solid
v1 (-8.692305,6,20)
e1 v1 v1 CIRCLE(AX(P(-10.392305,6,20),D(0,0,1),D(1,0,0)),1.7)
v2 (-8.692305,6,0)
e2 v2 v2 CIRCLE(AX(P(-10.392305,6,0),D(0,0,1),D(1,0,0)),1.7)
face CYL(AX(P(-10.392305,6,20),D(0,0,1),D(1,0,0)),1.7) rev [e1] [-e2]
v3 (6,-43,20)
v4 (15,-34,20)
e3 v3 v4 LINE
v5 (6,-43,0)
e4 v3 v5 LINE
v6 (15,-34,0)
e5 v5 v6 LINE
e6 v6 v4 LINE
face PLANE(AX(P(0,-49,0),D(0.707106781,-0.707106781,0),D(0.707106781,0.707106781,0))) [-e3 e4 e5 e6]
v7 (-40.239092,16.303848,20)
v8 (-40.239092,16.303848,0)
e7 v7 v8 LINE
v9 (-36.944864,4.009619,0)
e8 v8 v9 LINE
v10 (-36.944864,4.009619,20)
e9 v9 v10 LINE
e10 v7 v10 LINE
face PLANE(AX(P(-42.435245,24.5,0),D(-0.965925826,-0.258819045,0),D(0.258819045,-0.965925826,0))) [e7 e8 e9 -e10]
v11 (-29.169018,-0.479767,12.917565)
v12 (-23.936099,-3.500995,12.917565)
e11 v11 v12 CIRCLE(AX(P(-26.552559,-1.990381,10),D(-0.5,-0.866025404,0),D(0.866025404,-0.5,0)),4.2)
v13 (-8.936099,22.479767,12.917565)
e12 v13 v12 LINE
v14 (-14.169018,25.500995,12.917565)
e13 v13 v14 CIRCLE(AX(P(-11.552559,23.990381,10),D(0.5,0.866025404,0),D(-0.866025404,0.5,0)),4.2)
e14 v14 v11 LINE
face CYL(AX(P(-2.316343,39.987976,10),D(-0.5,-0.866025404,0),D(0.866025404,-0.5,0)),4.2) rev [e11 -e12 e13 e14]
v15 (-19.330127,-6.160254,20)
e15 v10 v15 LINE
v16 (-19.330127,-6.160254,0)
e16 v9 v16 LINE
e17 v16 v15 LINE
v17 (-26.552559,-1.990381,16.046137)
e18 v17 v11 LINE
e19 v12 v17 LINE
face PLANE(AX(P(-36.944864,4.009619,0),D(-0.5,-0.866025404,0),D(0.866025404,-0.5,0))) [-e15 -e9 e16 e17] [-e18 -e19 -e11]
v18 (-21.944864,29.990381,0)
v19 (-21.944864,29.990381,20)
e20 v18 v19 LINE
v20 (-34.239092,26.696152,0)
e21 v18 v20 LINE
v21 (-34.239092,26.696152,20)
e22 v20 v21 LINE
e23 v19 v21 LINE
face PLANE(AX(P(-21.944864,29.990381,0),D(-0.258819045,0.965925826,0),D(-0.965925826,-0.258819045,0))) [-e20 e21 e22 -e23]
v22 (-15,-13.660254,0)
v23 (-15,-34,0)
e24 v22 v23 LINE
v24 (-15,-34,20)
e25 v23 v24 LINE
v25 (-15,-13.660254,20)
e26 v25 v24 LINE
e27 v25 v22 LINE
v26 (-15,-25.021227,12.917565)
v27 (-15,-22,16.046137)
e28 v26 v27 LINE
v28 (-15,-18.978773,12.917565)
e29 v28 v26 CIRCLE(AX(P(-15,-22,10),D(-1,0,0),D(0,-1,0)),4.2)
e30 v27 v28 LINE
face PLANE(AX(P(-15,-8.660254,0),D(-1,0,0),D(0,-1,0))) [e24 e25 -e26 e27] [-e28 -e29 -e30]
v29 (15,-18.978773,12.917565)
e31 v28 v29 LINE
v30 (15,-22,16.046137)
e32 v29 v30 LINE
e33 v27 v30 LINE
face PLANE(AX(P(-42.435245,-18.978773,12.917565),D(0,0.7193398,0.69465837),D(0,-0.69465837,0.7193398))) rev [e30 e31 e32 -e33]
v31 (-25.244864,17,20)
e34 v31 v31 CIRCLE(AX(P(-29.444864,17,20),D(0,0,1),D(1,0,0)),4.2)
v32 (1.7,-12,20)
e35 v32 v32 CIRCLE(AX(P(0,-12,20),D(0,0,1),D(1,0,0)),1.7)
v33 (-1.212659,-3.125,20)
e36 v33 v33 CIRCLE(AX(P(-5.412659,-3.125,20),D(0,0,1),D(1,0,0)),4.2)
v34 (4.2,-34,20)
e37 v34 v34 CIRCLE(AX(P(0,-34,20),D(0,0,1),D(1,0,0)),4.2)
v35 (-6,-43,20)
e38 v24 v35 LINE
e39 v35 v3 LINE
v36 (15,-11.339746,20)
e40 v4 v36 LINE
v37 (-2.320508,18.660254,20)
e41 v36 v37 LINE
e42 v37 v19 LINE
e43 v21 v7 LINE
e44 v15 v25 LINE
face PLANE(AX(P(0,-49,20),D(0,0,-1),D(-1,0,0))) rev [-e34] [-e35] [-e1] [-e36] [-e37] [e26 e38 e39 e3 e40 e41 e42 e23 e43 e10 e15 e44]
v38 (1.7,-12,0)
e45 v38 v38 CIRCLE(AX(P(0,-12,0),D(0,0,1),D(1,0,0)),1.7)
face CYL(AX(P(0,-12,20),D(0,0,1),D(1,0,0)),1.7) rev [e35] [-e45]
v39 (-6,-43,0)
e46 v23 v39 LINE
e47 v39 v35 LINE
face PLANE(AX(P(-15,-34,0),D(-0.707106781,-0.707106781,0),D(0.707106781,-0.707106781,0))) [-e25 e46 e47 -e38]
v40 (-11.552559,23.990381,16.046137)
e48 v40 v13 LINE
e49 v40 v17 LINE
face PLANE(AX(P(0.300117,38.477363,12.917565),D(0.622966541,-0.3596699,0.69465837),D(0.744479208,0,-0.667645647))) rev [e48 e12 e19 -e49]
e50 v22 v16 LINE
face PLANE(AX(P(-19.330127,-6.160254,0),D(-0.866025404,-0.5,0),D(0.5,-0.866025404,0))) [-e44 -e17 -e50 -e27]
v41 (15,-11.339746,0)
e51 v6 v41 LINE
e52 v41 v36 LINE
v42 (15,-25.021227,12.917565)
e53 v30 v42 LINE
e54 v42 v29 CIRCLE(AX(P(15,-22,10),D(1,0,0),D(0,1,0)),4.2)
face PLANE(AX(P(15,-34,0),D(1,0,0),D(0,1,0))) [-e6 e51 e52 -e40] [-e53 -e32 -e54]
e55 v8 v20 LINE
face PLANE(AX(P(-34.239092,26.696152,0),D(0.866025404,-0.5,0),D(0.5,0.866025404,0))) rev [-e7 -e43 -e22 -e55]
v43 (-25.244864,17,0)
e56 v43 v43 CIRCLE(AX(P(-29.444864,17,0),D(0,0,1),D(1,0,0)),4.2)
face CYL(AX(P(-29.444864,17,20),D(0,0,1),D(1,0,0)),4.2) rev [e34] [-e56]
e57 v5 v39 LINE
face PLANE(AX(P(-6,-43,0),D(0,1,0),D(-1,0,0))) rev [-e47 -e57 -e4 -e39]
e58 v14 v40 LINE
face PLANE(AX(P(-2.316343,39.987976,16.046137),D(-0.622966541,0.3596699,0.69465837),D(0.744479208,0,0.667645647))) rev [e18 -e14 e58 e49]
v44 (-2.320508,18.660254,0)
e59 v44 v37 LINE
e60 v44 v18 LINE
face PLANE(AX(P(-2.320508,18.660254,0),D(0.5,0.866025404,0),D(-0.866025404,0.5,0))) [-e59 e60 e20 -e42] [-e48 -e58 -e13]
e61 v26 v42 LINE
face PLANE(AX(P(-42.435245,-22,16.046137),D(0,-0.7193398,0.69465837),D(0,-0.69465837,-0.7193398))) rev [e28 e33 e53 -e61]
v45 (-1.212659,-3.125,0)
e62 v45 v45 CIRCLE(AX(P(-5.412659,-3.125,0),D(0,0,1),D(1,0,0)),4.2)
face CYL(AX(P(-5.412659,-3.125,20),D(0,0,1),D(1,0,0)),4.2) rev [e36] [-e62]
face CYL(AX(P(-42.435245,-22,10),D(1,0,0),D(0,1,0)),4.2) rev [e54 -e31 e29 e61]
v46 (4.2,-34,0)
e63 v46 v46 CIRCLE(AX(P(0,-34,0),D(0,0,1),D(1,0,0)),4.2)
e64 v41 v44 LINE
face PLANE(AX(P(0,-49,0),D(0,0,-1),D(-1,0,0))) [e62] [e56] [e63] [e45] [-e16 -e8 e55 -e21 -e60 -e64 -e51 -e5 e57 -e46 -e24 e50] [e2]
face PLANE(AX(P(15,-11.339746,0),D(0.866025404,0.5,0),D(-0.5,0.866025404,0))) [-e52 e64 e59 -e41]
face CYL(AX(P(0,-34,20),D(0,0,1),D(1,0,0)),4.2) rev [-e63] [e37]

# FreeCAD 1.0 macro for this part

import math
import FreeCAD as App
import Part
import Sketcher
from FreeCAD import Vector
Q = App.Units.Quantity


def edges_at(feature, points):
    """Names of the edges that pass closest to the given points."""
    edges = feature.Shape.Edges
    near = lambda p: min(range(len(edges)), key=lambda i: edges[i].distToShape(Part.Vertex(*p))[0])
    return sorted({f"Edge{near(p) + 1}" for p in points})


def add_polygon(sketch, points):
    """Adds a closed chain of lines whose ends are joined by coincident constraints."""
    first, n = sketch.GeometryCount, len(points)
    for a, b in zip(points, points[1:] + points[:1]):
        sketch.addGeometry(Part.LineSegment(App.Vector(*a, 0), App.Vector(*b, 0)), False)
    for i in range(n):
        sketch.addConstraint(Sketcher.Constraint("Coincident", first + i, 2, first + (i + 1) % n, 1))

doc = App.newDocument("Part")
body = doc.addObject("PartDesign::Body", "Body")

# Sketch on XY plane
sketch1 = body.newObject("Sketcher::SketchObject", "Sketch")
sketch1.AttachmentSupport = (doc.getObject("XY_Plane"), [""])
sketch1.MapMode = "FlatFace"
sketch1.AttachmentOffset = App.Placement(Vector(0, 0, 20), App.Rotation())
add_polygon(sketch1, [(15, -34), (15, -11.339746), (-2.320508, 18.660254), (-21.944864, 29.990381), (-42.435245, 24.5), (-36.944864, 4.009619), (-15, -8.660254), (-15, -34), (0, -49)])  # lines 0-8
sketch1.addConstraint([
    Sketcher.Constraint("Vertical", 0),
    Sketcher.Constraint("Vertical", 6),
    Sketcher.Constraint("Symmetric", 6, 2, 8, 2, -2),
    Sketcher.Constraint("PointOnObject", 7, 2, -2),
    Sketcher.Constraint("Perpendicular", 3, 4),
    Sketcher.Constraint("Parallel", 2, 5),
    Sketcher.Constraint("Perpendicular", 7, 8),
    Sketcher.Constraint("Equal", 3, 4),
    Sketcher.Constraint("Equal", 4, 7),
    Sketcher.Constraint("Angle", 1, Q("120 deg")),
    Sketcher.Constraint("Angle", 2, Q("150 deg")),
    Sketcher.Constraint("Angle", 3, Q("-165 deg")),
    Sketcher.Constraint("DistanceX", -1, 1, 0, 2, 15.0),
    Sketcher.Constraint("DistanceY", 6, 2, -1, 1, 34.0),
    Sketcher.Constraint("DistanceY", 0, 2, 1, 2, 30.0),
    Sketcher.Constraint("DistanceY", -1, 1, 3, 2, 24.5),
    Sketcher.Constraint("DistanceY", 0, 1, 0, 2, 22.660254),
])
pad1 = body.newObject("PartDesign::Pad", "Pad")
pad1.Profile = sketch1
pad1.Length = 20
pad1.Reversed = True

# Sketch on an angled plane
sketch2 = body.newObject("Sketcher::SketchObject", "Sketch001")
sketch2.Placement = App.Placement(Vector(-7.5, -12.990381, 0), App.Rotation(Vector(0.866025404, -0.5, 0), Vector(0, 0, 1), Vector(-0.5, -0.866025404, 0), "ZXY"))
sketch2.addGeometry([
    Part.LineSegment(Vector(-18.978773, 12.917565, 0), Vector(-22, 16.046137, 0)),
    Part.LineSegment(Vector(-22, 16.046137, 0), Vector(-25.021227, 12.917565, 0)),
    Part.ArcOfCircle(Part.Circle(Vector(-22, 10, 0), Vector(0, 0, 1), 4.2), math.radians(136), math.radians(404)),
], False)
sketch2.addConstraint([
    Sketcher.Constraint("Coincident", 0, 2, 1, 1),
    Sketcher.Constraint("Tangent", 1, 2, 2, 1),
    Sketcher.Constraint("Tangent", 2, 2, 0, 1),
    Sketcher.Constraint("Horizontal", 1, 2, 2, 2),
    Sketcher.Constraint("Radius", 2, 4.2),
    Sketcher.Constraint("Angle", 0, Q("134 deg")),
    Sketcher.Constraint("DistanceX", 2, 3, -1, 1, 22.0),
    Sketcher.Constraint("DistanceY", -1, 1, 2, 3, 10.0),
])
pocket1 = body.newObject("PartDesign::Pocket", "Pocket")
pocket1.Profile = sketch2
pocket1.Type = "ThroughAll"

# Sketch on YZ plane
sketch3 = body.newObject("Sketcher::SketchObject", "Sketch002")
sketch3.AttachmentSupport = (doc.getObject("YZ_Plane"), [""])
sketch3.MapMode = "FlatFace"
sketch3.AttachmentOffset = App.Placement(Vector(0, 0, 15), App.Rotation())
sketch3.addGeometry([
    Part.LineSegment(Vector(-18.978773, 12.917565, 0), Vector(-22, 16.046137, 0)),
    Part.LineSegment(Vector(-22, 16.046137, 0), Vector(-25.021227, 12.917565, 0)),
    Part.ArcOfCircle(Part.Circle(Vector(-22, 10, 0), Vector(0, 0, 1), 4.2), math.radians(136), math.radians(404)),
], False)
sketch3.addConstraint([
    Sketcher.Constraint("Coincident", 0, 2, 1, 1),
    Sketcher.Constraint("Tangent", 1, 2, 2, 1),
    Sketcher.Constraint("Tangent", 2, 2, 0, 1),
    Sketcher.Constraint("Horizontal", 1, 2, 2, 2),
    Sketcher.Constraint("Radius", 2, 4.2),
    Sketcher.Constraint("Angle", 0, Q("134 deg")),
    Sketcher.Constraint("DistanceX", 2, 3, -1, 1, 22.0),
    Sketcher.Constraint("DistanceY", -1, 1, 2, 3, 10.0),
])
pocket2 = body.newObject("PartDesign::Pocket", "Pocket001")
pocket2.Profile = sketch3
pocket2.Type = "ThroughAll"

# Sketch on XY plane
sketch4 = body.newObject("Sketcher::SketchObject", "Sketch003")
sketch4.AttachmentSupport = (doc.getObject("XY_Plane"), [""])
sketch4.MapMode = "FlatFace"
sketch4.AttachmentOffset = App.Placement(Vector(0, 0, 20), App.Rotation())
sketch4.addGeometry(Part.Circle(Vector(0, -12, 0), Vector(0, 0, 1), 1.7), False)
sketch4.addConstraint([
    Sketcher.Constraint("PointOnObject", 0, 3, -2),
    Sketcher.Constraint("Diameter", 0, 3.4),
    Sketcher.Constraint("DistanceY", 0, 3, -1, 1, 12.0),
])
doc.recompute()
hole = body.newObject("PartDesign::Hole", "Hole")
hole.Profile = sketch4
hole.ThreadType = "None"
hole.Diameter = 3.4
hole.DepthType = "ThroughAll"

# Sketch on XY plane
sketch5 = body.newObject("Sketcher::SketchObject", "Sketch004")
sketch5.AttachmentSupport = (doc.getObject("XY_Plane"), [""])
sketch5.MapMode = "FlatFace"
sketch5.AttachmentOffset = App.Placement(Vector(0, 0, 20), App.Rotation())
sketch5.addGeometry(Part.Circle(Vector(-10.392305, 6, 0), Vector(0, 0, 1), 1.7), False)
sketch5.addConstraint([
    Sketcher.Constraint("Diameter", 0, 3.4),
    Sketcher.Constraint("DistanceY", -1, 1, 0, 3, 6.0),
    Sketcher.Constraint("DistanceX", 0, 3, -1, 1, 10.392305),
])
doc.recompute()
hole2 = body.newObject("PartDesign::Hole", "Hole001")
hole2.Profile = sketch5
hole2.ThreadType = "None"
hole2.Diameter = 3.4
hole2.DepthType = "ThroughAll"

# Sketch on XY plane
sketch6 = body.newObject("Sketcher::SketchObject", "Sketch005")
sketch6.AttachmentSupport = (doc.getObject("XY_Plane"), [""])
sketch6.MapMode = "FlatFace"
sketch6.AttachmentOffset = App.Placement(Vector(0, 0, 20), App.Rotation())
sketch6.addGeometry(Part.Circle(Vector(-5.412659, -3.125, 0), Vector(0, 0, 1), 4.2), False)
sketch6.addConstraint([
    Sketcher.Constraint("Diameter", 0, 8.4),
    Sketcher.Constraint("DistanceY", 0, 3, -1, 1, 3.125),
    Sketcher.Constraint("DistanceX", 0, 3, -1, 1, 5.412659),
])
doc.recompute()
hole3 = body.newObject("PartDesign::Hole", "Hole002")
hole3.Profile = sketch6
hole3.ThreadType = "None"
hole3.Diameter = 8.4
hole3.DepthType = "ThroughAll"

# Sketch on XY plane
sketch7 = body.newObject("Sketcher::SketchObject", "Sketch006")
sketch7.AttachmentSupport = (doc.getObject("XY_Plane"), [""])
sketch7.MapMode = "FlatFace"
sketch7.AttachmentOffset = App.Placement(Vector(0, 0, 20), App.Rotation())
sketch7.addGeometry(Part.Circle(Vector(-29.444864, 17, 0), Vector(0, 0, 1), 4.2), False)
sketch7.addConstraint([
    Sketcher.Constraint("Diameter", 0, 8.4),
    Sketcher.Constraint("DistanceY", -1, 1, 0, 3, 17.0),
    Sketcher.Constraint("DistanceX", 0, 3, -1, 1, 29.444864),
])
doc.recompute()
hole4 = body.newObject("PartDesign::Hole", "Hole003")
hole4.Profile = sketch7
hole4.ThreadType = "None"
hole4.Diameter = 8.4
hole4.DepthType = "ThroughAll"

# Sketch on XY plane
sketch8 = body.newObject("Sketcher::SketchObject", "Sketch007")
sketch8.AttachmentSupport = (doc.getObject("XY_Plane"), [""])
sketch8.MapMode = "FlatFace"
sketch8.AttachmentOffset = App.Placement(Vector(0, 0, 20), App.Rotation())
sketch8.addGeometry(Part.Circle(Vector(0, -34, 0), Vector(0, 0, 1), 4.2), False)
sketch8.addConstraint([
    Sketcher.Constraint("PointOnObject", 0, 3, -2),
    Sketcher.Constraint("Diameter", 0, 8.4),
    Sketcher.Constraint("DistanceY", 0, 3, -1, 1, 34.0),
])
doc.recompute()
hole5 = body.newObject("PartDesign::Hole", "Hole004")
hole5.Profile = sketch8
hole5.ThreadType = "None"
hole5.Diameter = 8.4
hole5.DepthType = "ThroughAll"
doc.recompute()

chamfer = body.newObject("PartDesign::Chamfer", "Chamfer")
chamfer.Base = (hole5, edges_at(hole5, [(-42.435, 24.5, 10)]))
chamfer.Size = 8.485281
doc.recompute()

chamfer2 = body.newObject("PartDesign::Chamfer", "Chamfer001")
chamfer2.Base = (chamfer, edges_at(chamfer, [(-15, -8.66, 10)]))
chamfer2.Size = 5
doc.recompute()

chamfer3 = body.newObject("PartDesign::Chamfer", "Chamfer002")
chamfer3.Base = (chamfer2, edges_at(chamfer2, [(0, -49, 10)]))
chamfer3.Size = 8.485281

doc.recompute()
